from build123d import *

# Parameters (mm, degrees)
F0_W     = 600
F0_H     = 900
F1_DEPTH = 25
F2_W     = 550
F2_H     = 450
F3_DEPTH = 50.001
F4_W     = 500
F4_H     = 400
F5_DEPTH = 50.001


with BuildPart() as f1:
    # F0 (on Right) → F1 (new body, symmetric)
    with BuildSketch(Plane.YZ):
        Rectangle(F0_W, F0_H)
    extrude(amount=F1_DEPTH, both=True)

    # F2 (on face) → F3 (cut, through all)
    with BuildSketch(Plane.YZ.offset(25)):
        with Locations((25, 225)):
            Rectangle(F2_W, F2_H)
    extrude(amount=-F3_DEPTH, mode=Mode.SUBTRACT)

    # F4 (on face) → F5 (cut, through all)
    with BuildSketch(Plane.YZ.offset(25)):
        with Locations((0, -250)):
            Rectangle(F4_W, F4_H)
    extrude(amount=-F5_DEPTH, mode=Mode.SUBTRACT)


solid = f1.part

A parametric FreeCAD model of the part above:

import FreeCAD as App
import Part
import Sketcher
Q = App.Units.Quantity


def add_polygon(sketch, points):
    """Adds a closed chain of lines whose ends are joined by coincident constraints."""
    first, n = sketch.GeometryCount, len(points)
    for a, b in zip(points, points[1:] + points[:1]):
        sketch.addGeometry(Part.LineSegment(App.Vector(*a, 0), App.Vector(*b, 0)), False)
    for i in range(n):
        sketch.addConstraint(Sketcher.Constraint("Coincident", first + i, 2, first + (i + 1) % n, 1))

doc = App.newDocument("Part")
body = doc.addObject("PartDesign::Body", "Body")

# Sketch on YZ plane
sketch1 = body.newObject("Sketcher::SketchObject", "Sketch")
sketch1.AttachmentSupport = (doc.getObject("YZ_Plane"), [""])
sketch1.MapMode = "FlatFace"
add_polygon(sketch1, [(-300, 450), (-300, -450), (300, -450), (300, 450)])  # lines 0-3
sketch1.addConstraint(Sketcher.Constraint("Vertical", 0))
sketch1.addConstraint(Sketcher.Constraint("Horizontal", 1))
sketch1.addConstraint(Sketcher.Constraint("Vertical", 2))
sketch1.addConstraint(Sketcher.Constraint("Horizontal", 3))
sketch1.addConstraint(Sketcher.Constraint("Symmetric", 0, 2, 2, 2, -1, 1))
sketch1.addConstraint(Sketcher.Constraint("DistanceX", 1, 1, 1, 2, Q("600 mm")))
sketch1.addConstraint(Sketcher.Constraint("DistanceY", 0, 2, 0, 1, Q("900 mm")))
pad1 = body.newObject("PartDesign::Pad", "Pad")
pad1.Profile = sketch1
pad1.Length = 50
pad1.Midplane = True

# Sketch on YZ plane
sketch2 = body.newObject("Sketcher::SketchObject", "Sketch001")
sketch2.AttachmentSupport = (doc.getObject("YZ_Plane"), [""])
sketch2.MapMode = "FlatFace"
sketch2.AttachmentOffset = App.Placement(App.Vector(0, 0, 25), App.Rotation())
add_polygon(sketch2, [(-250, 450), (-250, 0), (300, 0), (300, 450)])  # lines 0-3
sketch2.addConstraint(Sketcher.Constraint("Vertical", 0))
sketch2.addConstraint(Sketcher.Constraint("Horizontal", 1))
sketch2.addConstraint(Sketcher.Constraint("Vertical", 2))
sketch2.addConstraint(Sketcher.Constraint("Horizontal", 3))
sketch2.addConstraint(Sketcher.Constraint("PointOnObject", 0, 2, -1))
sketch2.addConstraint(Sketcher.Constraint("DistanceX", 1, 1, 1, 2, Q("550 mm")))
sketch2.addConstraint(Sketcher.Constraint("DistanceY", 0, 2, 0, 1, Q("450 mm")))
sketch2.addConstraint(Sketcher.Constraint("DistanceX", 0, 2, -1, 1, Q("250 mm")))
pocket1 = body.newObject("PartDesign::Pocket", "Pocket")
pocket1.Profile = sketch2
pocket1.Type = "ThroughAll"

# Sketch on YZ plane
sketch3 = body.newObject("Sketcher::SketchObject", "Sketch002")
sketch3.AttachmentSupport = (doc.getObject("YZ_Plane"), [""])
sketch3.MapMode = "FlatFace"
sketch3.AttachmentOffset = App.Placement(App.Vector(0, 0, 25), App.Rotation())
add_polygon(sketch3, [(-250, -50), (-250, -450), (250, -450), (250, -50)])  # lines 0-3
sketch3.addConstraint(Sketcher.Constraint("Vertical", 0))
sketch3.addConstraint(Sketcher.Constraint("Horizontal", 1))
sketch3.addConstraint(Sketcher.Constraint("Vertical", 2))
sketch3.addConstraint(Sketcher.Constraint("Horizontal", 3))
sketch3.addConstraint(Sketcher.Constraint("DistanceX", 1, 1, 1, 2, Q("500 mm")))
sketch3.addConstraint(Sketcher.Constraint("DistanceY", 0, 2, 0, 1, Q("400 mm")))
sketch3.addConstraint(Sketcher.Constraint("DistanceX", 0, 2, -1, 1, Q("250 mm")))
sketch3.addConstraint(Sketcher.Constraint("DistanceY", 0, 2, -1, 1, Q("450 mm")))
pocket2 = body.newObject("PartDesign::Pocket", "Pocket001")
pocket2.Profile = sketch3
pocket2.Type = "ThroughAll"

doc.recompute()
